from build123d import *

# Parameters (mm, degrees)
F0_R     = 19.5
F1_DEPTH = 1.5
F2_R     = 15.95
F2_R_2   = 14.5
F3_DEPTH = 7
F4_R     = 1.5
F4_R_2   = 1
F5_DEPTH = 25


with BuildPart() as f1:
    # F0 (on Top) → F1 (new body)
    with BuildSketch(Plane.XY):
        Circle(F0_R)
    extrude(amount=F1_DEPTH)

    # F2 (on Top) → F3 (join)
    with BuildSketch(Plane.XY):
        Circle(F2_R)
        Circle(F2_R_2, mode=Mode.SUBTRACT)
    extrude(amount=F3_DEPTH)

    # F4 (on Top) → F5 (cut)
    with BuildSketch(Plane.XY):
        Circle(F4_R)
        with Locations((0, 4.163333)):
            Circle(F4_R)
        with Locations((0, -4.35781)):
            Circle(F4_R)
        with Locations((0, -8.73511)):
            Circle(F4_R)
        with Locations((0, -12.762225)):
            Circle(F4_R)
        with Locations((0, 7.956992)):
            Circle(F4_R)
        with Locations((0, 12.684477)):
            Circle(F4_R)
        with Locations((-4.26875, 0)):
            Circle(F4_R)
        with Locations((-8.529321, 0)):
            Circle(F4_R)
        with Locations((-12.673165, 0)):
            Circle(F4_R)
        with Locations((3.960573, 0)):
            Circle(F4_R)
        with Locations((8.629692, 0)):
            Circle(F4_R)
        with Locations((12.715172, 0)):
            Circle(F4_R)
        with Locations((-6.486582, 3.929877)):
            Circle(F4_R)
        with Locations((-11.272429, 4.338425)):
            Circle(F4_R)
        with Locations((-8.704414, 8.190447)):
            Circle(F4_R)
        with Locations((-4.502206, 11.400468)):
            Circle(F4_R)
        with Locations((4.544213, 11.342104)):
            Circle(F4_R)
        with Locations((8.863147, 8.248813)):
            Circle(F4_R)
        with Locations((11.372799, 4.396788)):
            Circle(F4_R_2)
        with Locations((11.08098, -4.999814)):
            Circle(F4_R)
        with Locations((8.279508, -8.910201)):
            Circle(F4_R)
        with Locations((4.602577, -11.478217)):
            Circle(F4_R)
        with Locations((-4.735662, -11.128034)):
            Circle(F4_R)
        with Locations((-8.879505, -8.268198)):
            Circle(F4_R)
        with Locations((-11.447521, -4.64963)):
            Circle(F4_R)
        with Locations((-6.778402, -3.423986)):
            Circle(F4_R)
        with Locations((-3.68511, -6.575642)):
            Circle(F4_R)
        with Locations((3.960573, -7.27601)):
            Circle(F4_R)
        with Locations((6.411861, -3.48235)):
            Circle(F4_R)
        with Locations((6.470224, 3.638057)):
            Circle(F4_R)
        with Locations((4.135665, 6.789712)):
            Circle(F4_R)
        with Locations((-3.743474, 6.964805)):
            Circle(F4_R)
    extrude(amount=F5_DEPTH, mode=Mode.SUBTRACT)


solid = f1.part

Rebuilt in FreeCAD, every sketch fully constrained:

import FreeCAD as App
import Part
import Sketcher
Q = App.Units.Quantity

doc = App.newDocument("Part")
body = doc.addObject("PartDesign::Body", "Body")

# Sketch on XY plane
sketch1 = doc.addObject("Sketcher::SketchObject", "Sketch")
body.addObject(sketch1)
sketch1.AttachmentSupport = (doc.XY_Plane, [""])
sketch1.MapMode = "FlatFace"
sketch1.addGeometry(Part.Circle(App.Vector(0, 0, 0), App.Vector(0, 0, 1), 20), False)
sketch1.addConstraint([
    Sketcher.Constraint("Coincident", 0, 3, -1, 1),
    Sketcher.Constraint("Diameter", 0, Q("39 mm")),
])
pad1 = doc.addObject("PartDesign::Pad", "Pad")
body.addObject(pad1)
pad1.Profile = sketch1
pad1.Length = 1.5

# Sketch on XY plane
sketch2 = doc.addObject("Sketcher::SketchObject", "Sketch001")
body.addObject(sketch2)
sketch2.AttachmentSupport = (doc.XY_Plane, [""])
sketch2.MapMode = "FlatFace"
sketch2.addGeometry([
    Part.Circle(App.Vector(0, 0, 0), App.Vector(0, 0, 1), 16),
    Part.Circle(App.Vector(0, 0, 0), App.Vector(0, 0, 1), 14),
], False)
sketch2.addConstraint([
    Sketcher.Constraint("Coincident", 0, 3, -1, 1),
    Sketcher.Constraint("Coincident", 1, 3, -1, 1),
    Sketcher.Constraint("Diameter", 1, Q("29 mm")),
    Sketcher.Constraint("Diameter", 0, Q("31.9 mm")),
])
pad2 = doc.addObject("PartDesign::Pad", "Pad001")
body.addObject(pad2)
pad2.Profile = sketch2
pad2.Length = 7

# Sketch on XY plane
sketch3 = doc.addObject("Sketcher::SketchObject", "Sketch002")
body.addObject(sketch3)
sketch3.AttachmentSupport = (doc.XY_Plane, [""])
sketch3.MapMode = "FlatFace"
sketch3.addGeometry([
    Part.Circle(App.Vector(0, 0, 0), App.Vector(0, 0, 1), 1.5),  # 0
    Part.Circle(App.Vector(0, 4.2, 0), App.Vector(0, 0, 1), 1.5),  # 1
    Part.Circle(App.Vector(0, -4.4, 0), App.Vector(0, 0, 1), 1.5),  # 2
    Part.Circle(App.Vector(0, -8.7, 0), App.Vector(0, 0, 1), 1.5),  # 3
    Part.Circle(App.Vector(0, -12.8, 0), App.Vector(0, 0, 1), 1.5),  # 4
    Part.Circle(App.Vector(0, 8, 0), App.Vector(0, 0, 1), 1.5),  # 5
    Part.Circle(App.Vector(0, 12.7, 0), App.Vector(0, 0, 1), 1.5),  # 6
    Part.Circle(App.Vector(-4.3, 0, 0), App.Vector(0, 0, 1), 1.5),  # 7
    Part.Circle(App.Vector(-8.5, 0, 0), App.Vector(0, 0, 1), 1.5),  # 8
    Part.Circle(App.Vector(-12.7, 0, 0), App.Vector(0, 0, 1), 1.5),  # 9
    Part.Circle(App.Vector(4, 0, 0), App.Vector(0, 0, 1), 1.5),  # 10
    Part.Circle(App.Vector(8.6, 0, 0), App.Vector(0, 0, 1), 1.5),  # 11
    Part.Circle(App.Vector(12.7, 0, 0), App.Vector(0, 0, 1), 1.5),  # 12
    Part.Circle(App.Vector(-6.5, 3.9, 0), App.Vector(0, 0, 1), 1.5),  # 13
    Part.Circle(App.Vector(-11.3, 4.3, 0), App.Vector(0, 0, 1), 1.5),  # 14
    Part.Circle(App.Vector(-8.7, 8.2, 0), App.Vector(0, 0, 1), 1.5),  # 15
    Part.Circle(App.Vector(-4.5, 11.4, 0), App.Vector(0, 0, 1), 1.5),  # 16
    Part.Circle(App.Vector(4.5, 11.3, 0), App.Vector(0, 0, 1), 1.5),  # 17
    Part.Circle(App.Vector(8.9, 8.2, 0), App.Vector(0, 0, 1), 1.5),  # 18
    Part.Circle(App.Vector(11.4, 4.4, 0), App.Vector(0, 0, 1), 1),  # 19
    Part.Circle(App.Vector(11.1, -5, 0), App.Vector(0, 0, 1), 1.5),  # 20
    Part.Circle(App.Vector(8.3, -8.9, 0), App.Vector(0, 0, 1), 1.5),  # 21
    Part.Circle(App.Vector(4.6, -11.5, 0), App.Vector(0, 0, 1), 1.5),  # 22
    Part.Circle(App.Vector(-4.7, -11.1, 0), App.Vector(0, 0, 1), 1.5),  # 23
    Part.Circle(App.Vector(-8.9, -8.3, 0), App.Vector(0, 0, 1), 1.5),  # 24
    Part.Circle(App.Vector(-11.4, -4.6, 0), App.Vector(0, 0, 1), 1.5),  # 25
    Part.Circle(App.Vector(-6.8, -3.4, 0), App.Vector(0, 0, 1), 1.5),  # 26
    Part.Circle(App.Vector(-3.7, -6.6, 0), App.Vector(0, 0, 1), 1.5),  # 27
    Part.Circle(App.Vector(4, -7.3, 0), App.Vector(0, 0, 1), 1.5),  # 28
    Part.Circle(App.Vector(6.4, -3.5, 0), App.Vector(0, 0, 1), 1.5),  # 29
    Part.Circle(App.Vector(6.5, 3.6, 0), App.Vector(0, 0, 1), 1.5),  # 30
    Part.Circle(App.Vector(4.1, 6.8, 0), App.Vector(0, 0, 1), 1.5),  # 31
    Part.Circle(App.Vector(-3.7, 7, 0), App.Vector(0, 0, 1), 1.5),  # 32
], False)
sketch3.addConstraint([
    Sketcher.Constraint("Coincident", 0, 3, -1, 1),
    Sketcher.Constraint("Equal", 0, 1),
    Sketcher.Constraint("Equal", 1, 2),
    Sketcher.Constraint("Equal", 2, 3),
    Sketcher.Constraint("Equal", 3, 4),
    Sketcher.Constraint("Equal", 4, 5),
    Sketcher.Constraint("Equal", 5, 6),
    Sketcher.Constraint("Equal", 6, 7),
    Sketcher.Constraint("Equal", 7, 8),
    Sketcher.Constraint("Equal", 8, 9),
    Sketcher.Constraint("Equal", 9, 10),
    Sketcher.Constraint("Equal", 10, 11),
    Sketcher.Constraint("Equal", 11, 12),
    Sketcher.Constraint("Equal", 12, 13),
    Sketcher.Constraint("Equal", 13, 14),
    Sketcher.Constraint("Equal", 14, 15),
    Sketcher.Constraint("Equal", 15, 16),
    Sketcher.Constraint("Equal", 16, 17),
    Sketcher.Constraint("Equal", 17, 18),
    Sketcher.Constraint("Equal", 18, 20),
    Sketcher.Constraint("Equal", 20, 21),
    Sketcher.Constraint("Equal", 21, 22),
    Sketcher.Constraint("Equal", 22, 23),
    Sketcher.Constraint("Equal", 23, 24),
    Sketcher.Constraint("Equal", 24, 25),
    Sketcher.Constraint("Equal", 25, 26),
    Sketcher.Constraint("Equal", 26, 27),
    Sketcher.Constraint("Equal", 27, 28),
    Sketcher.Constraint("Equal", 28, 29),
    Sketcher.Constraint("Equal", 29, 30),
    Sketcher.Constraint("Equal", 30, 31),
    Sketcher.Constraint("Equal", 31, 32),
    Sketcher.Constraint("PointOnObject", 1, 3, -2),
    Sketcher.Constraint("PointOnObject", 2, 3, -2),
    Sketcher.Constraint("PointOnObject", 3, 3, -2),
    Sketcher.Constraint("PointOnObject", 4, 3, -2),
    Sketcher.Constraint("PointOnObject", 5, 3, -2),
    Sketcher.Constraint("PointOnObject", 6, 3, -2),
    Sketcher.Constraint("PointOnObject", 7, 3, -1),
    Sketcher.Constraint("PointOnObject", 8, 3, -1),
    Sketcher.Constraint("PointOnObject", 9, 3, -1),
    Sketcher.Constraint("PointOnObject", 10, 3, -1),
    Sketcher.Constraint("PointOnObject", 11, 3, -1),
    Sketcher.Constraint("PointOnObject", 12, 3, -1),
    Sketcher.Constraint("Vertical", 10, 3, 28, 3),
    Sketcher.Constraint("Diameter", 0, Q("3 mm")),
    Sketcher.Constraint("Diameter", 19, Q("2 mm")),
    Sketcher.Constraint("DistanceX", -1, 1, 19, 3, Q("11.372799 mm")),
    Sketcher.Constraint("DistanceY", 21, 3, -1, 1, Q("8.910201 mm")),
    Sketcher.Constraint("DistanceX", 26, 3, -1, 1, Q("6.778402 mm")),
    Sketcher.Constraint("DistanceY", 3, 3, 2, 3, Q("4.3773 mm")),
    Sketcher.Constraint("DistanceY", 3, 3, 5, 3, Q("16.692102 mm")),
    Sketcher.Constraint("DistanceX", 10, 3, 12, 3, Q("8.754599 mm")),
    Sketcher.Constraint("DistanceX", 25, 3, 8, 3, Q("2.9182 mm")),
    Sketcher.Constraint("DistanceY", 3, 3, 28, 3, Q("1.4591 mm")),
    Sketcher.Constraint("DistanceY", 31, 3, 18, 3, Q("1.459101 mm")),
    Sketcher.Constraint("DistanceY", 2, 3, -1, 1, Q("4.35781 mm")),
    Sketcher.Constraint("DistanceX", 7, 3, -1, 1, Q("4.26875 mm")),
    Sketcher.Constraint("DistanceX", 8, 3, -1, 1, Q("8.529321 mm")),
    Sketcher.Constraint("DistanceX", 14, 3, -1, 1, Q("11.272429 mm")),
    Sketcher.Constraint("DistanceX", -1, 1, 20, 3, Q("11.08098 mm")),
    Sketcher.Constraint("DistanceX", 23, 3, -1, 1, Q("4.735662 mm")),
    Sketcher.Constraint("DistanceY", 25, 3, -1, 1, Q("4.64963 mm")),
    Sketcher.Constraint("DistanceX", 27, 3, -1, 1, Q("3.68511 mm")),
    Sketcher.Constraint("DistanceX", -1, 1, 29, 3, Q("6.411861 mm")),
    Sketcher.Constraint("DistanceY", 29, 3, -1, 1, Q("3.48235 mm")),
    Sketcher.Constraint("DistanceY", -1, 1, 31, 3, Q("6.789712 mm")),
    Sketcher.Constraint("DistanceY", 4, 3, 1, 3, Q("16.925558 mm")),
    Sketcher.Constraint("DistanceY", 1, 3, 5, 3, Q("3.793659 mm")),
    Sketcher.Constraint("DistanceX", 10, 3, 11, 3, Q("4.669119 mm")),
    Sketcher.Constraint("DistanceX", 8, 3, 13, 3, Q("2.042739 mm")),
    Sketcher.Constraint("DistanceY", 13, 3, 14, 3, Q("0.408548 mm")),
    Sketcher.Constraint("DistanceX", 15, 3, 13, 3, Q("2.217832 mm")),
    Sketcher.Constraint("DistanceY", 13, 3, 15, 3, Q("4.26057 mm")),
    Sketcher.Constraint("DistanceX", 9, 3, 15, 3, Q("3.968751 mm")),
    Sketcher.Constraint("DistanceY", 16, 3, 6, 3, Q("1.284009 mm")),
    Sketcher.Constraint("DistanceY", 15, 3, 16, 3, Q("3.210021 mm")),
    Sketcher.Constraint("DistanceY", 1, 3, 17, 3, Q("7.178771 mm")),
    Sketcher.Constraint("DistanceX", 16, 3, 17, 3, Q("9.046419 mm")),
    Sketcher.Constraint("DistanceX", 10, 3, 17, 3, Q("0.58364 mm")),
    Sketcher.Constraint("DistanceX", 22, 3, 21, 3, Q("3.676931 mm")),
    Sketcher.Constraint("DistanceY", 4, 3, 23, 3, Q("1.634191 mm")),
    Sketcher.Constraint("DistanceX", 23, 3, 22, 3, Q("9.338239 mm")),
    Sketcher.Constraint("DistanceX", 9, 3, 24, 3, Q("3.79366 mm")),
    Sketcher.Constraint("DistanceY", 24, 3, 26, 3, Q("4.844212 mm")),
    Sketcher.Constraint("DistanceY", 3, 3, 27, 3, Q("2.159468 mm")),
    Sketcher.Constraint("DistanceX", 29, 3, 11, 3, Q("2.217831 mm")),
    Sketcher.Constraint("DistanceX", 30, 3, 11, 3, Q("2.159468 mm")),
    Sketcher.Constraint("DistanceY", 30, 3, 19, 3, Q("0.758731 mm")),
    Sketcher.Constraint("DistanceX", 31, 3, 30, 3, Q("2.334559 mm")),
    Sketcher.Constraint("DistanceX", 31, 3, 18, 3, Q("4.727482 mm")),
    Sketcher.Constraint("DistanceX", 13, 3, 32, 3, Q("2.743108 mm")),
    Sketcher.Constraint("DistanceY", 13, 3, 32, 3, Q("3.034928 mm")),
    Sketcher.Constraint("DistanceY", -1, 1, 6, 3, Q("12.684477 mm")),
    Sketcher.Constraint("DistanceY", -1, 1, 19, 3, Q("4.396788 mm")),
    Sketcher.Constraint("DistanceY", 20, 3, -1, 1, Q("4.999814 mm")),
    Sketcher.Constraint("DistanceY", 22, 3, -1, 1, Q("11.478217 mm")),
    Sketcher.Constraint("DistanceY", 24, 3, -1, 1, Q("8.268198 mm")),
])
pocket1 = doc.addObject("PartDesign::Pocket", "Pocket")
body.addObject(pocket1)
pocket1.Profile = sketch3
pocket1.Length = 25
pocket1.Reversed = True

doc.recompute()
